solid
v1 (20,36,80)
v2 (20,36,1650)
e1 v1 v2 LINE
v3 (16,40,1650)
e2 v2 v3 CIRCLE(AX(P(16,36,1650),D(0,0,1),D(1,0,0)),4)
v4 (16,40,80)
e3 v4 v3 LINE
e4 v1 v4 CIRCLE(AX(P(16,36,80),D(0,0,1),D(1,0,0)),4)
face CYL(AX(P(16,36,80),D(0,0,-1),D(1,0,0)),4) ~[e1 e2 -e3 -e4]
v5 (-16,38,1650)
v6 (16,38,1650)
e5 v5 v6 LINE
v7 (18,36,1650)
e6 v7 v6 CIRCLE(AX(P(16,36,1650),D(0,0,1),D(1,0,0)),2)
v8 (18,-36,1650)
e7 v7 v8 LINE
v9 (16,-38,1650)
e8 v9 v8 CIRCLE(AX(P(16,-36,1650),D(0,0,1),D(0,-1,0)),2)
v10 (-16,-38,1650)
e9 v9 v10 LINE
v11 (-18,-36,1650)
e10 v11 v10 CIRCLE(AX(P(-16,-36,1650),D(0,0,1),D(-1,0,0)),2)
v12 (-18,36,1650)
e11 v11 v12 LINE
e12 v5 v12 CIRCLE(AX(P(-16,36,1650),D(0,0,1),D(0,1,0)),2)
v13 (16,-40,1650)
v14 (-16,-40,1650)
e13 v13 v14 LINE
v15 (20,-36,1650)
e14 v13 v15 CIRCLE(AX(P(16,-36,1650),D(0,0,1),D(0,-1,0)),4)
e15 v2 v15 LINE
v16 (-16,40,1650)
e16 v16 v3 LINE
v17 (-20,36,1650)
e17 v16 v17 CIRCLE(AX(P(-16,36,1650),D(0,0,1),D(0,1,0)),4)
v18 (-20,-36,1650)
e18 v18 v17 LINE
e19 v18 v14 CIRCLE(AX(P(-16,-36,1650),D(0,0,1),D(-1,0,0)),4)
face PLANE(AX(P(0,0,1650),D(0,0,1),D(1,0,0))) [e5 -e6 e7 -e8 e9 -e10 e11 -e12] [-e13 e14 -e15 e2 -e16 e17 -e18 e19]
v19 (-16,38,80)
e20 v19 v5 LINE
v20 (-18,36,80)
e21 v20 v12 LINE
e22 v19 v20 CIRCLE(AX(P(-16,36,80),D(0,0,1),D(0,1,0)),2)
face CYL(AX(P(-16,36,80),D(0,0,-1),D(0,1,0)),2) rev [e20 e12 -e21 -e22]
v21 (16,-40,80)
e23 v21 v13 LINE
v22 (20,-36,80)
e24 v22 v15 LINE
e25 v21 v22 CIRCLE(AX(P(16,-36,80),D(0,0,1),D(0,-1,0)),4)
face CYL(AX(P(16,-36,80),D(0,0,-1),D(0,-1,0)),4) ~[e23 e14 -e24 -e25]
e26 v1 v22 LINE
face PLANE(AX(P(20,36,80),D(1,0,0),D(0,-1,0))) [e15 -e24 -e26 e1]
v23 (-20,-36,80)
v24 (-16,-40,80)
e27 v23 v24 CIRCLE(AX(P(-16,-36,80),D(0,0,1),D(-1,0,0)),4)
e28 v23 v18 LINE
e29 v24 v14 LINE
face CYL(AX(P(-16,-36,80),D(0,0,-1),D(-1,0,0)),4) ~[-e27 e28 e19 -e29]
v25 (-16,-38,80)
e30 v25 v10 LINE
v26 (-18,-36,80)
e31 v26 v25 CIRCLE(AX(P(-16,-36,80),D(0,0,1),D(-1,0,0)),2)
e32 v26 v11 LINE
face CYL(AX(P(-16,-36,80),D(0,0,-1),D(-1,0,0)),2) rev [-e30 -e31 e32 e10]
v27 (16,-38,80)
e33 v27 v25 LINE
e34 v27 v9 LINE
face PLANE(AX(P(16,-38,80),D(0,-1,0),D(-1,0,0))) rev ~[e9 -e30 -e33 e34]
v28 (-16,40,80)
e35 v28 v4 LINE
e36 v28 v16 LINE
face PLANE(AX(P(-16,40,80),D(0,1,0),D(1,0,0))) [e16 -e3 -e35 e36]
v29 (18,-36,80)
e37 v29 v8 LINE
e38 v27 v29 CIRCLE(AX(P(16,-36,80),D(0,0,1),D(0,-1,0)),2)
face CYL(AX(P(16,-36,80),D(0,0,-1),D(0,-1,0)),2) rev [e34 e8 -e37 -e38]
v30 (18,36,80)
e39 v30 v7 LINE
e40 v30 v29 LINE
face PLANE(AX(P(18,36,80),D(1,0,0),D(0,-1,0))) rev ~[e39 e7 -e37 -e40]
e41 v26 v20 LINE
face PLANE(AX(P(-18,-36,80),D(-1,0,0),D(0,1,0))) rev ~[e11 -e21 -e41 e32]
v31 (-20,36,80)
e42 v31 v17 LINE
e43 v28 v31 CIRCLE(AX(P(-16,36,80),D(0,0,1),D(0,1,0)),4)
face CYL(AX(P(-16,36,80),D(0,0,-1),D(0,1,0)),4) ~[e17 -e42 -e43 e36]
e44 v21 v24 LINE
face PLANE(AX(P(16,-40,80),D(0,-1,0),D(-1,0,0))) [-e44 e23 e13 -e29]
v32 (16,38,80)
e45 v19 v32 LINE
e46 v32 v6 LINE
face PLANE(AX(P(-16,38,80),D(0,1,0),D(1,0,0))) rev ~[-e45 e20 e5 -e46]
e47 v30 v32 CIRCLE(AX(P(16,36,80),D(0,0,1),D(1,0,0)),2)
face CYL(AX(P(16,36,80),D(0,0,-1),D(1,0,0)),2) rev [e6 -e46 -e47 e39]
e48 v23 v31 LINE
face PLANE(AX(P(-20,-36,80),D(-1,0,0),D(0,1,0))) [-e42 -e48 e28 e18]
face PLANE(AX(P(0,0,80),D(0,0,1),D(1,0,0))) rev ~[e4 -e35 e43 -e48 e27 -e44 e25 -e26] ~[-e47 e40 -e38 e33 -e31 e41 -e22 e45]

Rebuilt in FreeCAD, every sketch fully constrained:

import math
import FreeCAD as App
import Part
import Sketcher

V = App.Vector

doc = App.newDocument("Part")
params = doc.addObject("Spreadsheet::Sheet", "Params")
for row, (alias, value) in enumerate([
    ("sketch1_radius", "4 mm"),
    ("sketch1_radius2", "2 mm"),
    ("pad1_length", "1570 mm"),
], start=1):
    params.set(f"A{row}", alias)
    params.set(f"B{row}", "=" + value)
    params.setAlias(f"B{row}", alias)

body = doc.addObject("PartDesign::Body", "Body")

# Sketch on XY plane
sketch1 = doc.addObject("Sketcher::SketchObject", "Sketch")
body.addObject(sketch1)
sketch1.AttachmentSupport = (doc.XY_Plane, [""])
sketch1.MapMode = "FlatFace"
sketch1.AttachmentOffset = App.Placement(V(0, 0, 80), App.Rotation())
sketch1.addGeometry([
    Part.LineSegment(V(-20, 36, 0), V(-20, -36, 0)),  # 0
    Part.ArcOfCircle(Part.Circle(V(-16, -36, 0), V(0, 0, 1), 4), math.radians(180), math.radians(270)),  # 1
    Part.LineSegment(V(-16, -40, 0), V(16, -40, 0)),  # 2
    Part.ArcOfCircle(Part.Circle(V(16, -36, 0), V(0, 0, 1), 4), math.radians(-90), math.radians(0)),  # 3
    Part.LineSegment(V(20, -36, 0), V(20, 36, 0)),  # 4
    Part.ArcOfCircle(Part.Circle(V(16, 36, 0), V(0, 0, 1), 4), math.radians(0), math.radians(90)),  # 5
    Part.LineSegment(V(16, 40, 0), V(-16, 40, 0)),  # 6
    Part.ArcOfCircle(Part.Circle(V(-16, 36, 0), V(0, 0, 1), 4), math.radians(90), math.radians(180)),  # 7
    Part.ArcOfCircle(Part.Circle(V(-16, 36, 0), V(0, 0, 1), 2), math.radians(90), math.radians(180)),  # 8
    Part.LineSegment(V(-16, 38, 0), V(16, 38, 0)),  # 9
    Part.ArcOfCircle(Part.Circle(V(16, 36, 0), V(0, 0, 1), 2), math.radians(0), math.radians(90)),  # 10
    Part.LineSegment(V(18, 36, 0), V(18, -36, 0)),  # 11
    Part.ArcOfCircle(Part.Circle(V(16, -36, 0), V(0, 0, 1), 2), math.radians(-90), math.radians(0)),  # 12
    Part.LineSegment(V(16, -38, 0), V(-16, -38, 0)),  # 13
    Part.ArcOfCircle(Part.Circle(V(-16, -36, 0), V(0, 0, 1), 2), math.radians(180), math.radians(270)),  # 14
    Part.LineSegment(V(-18, -36, 0), V(-18, 36, 0)),  # 15
], False)
sketch1.addConstraint([
    Sketcher.Constraint("Tangent", 0, 2, 1, 1),
    Sketcher.Constraint("Tangent", 1, 2, 2, 1),
    Sketcher.Constraint("Tangent", 2, 2, 3, 1),
    Sketcher.Constraint("Tangent", 3, 2, 4, 1),
    Sketcher.Constraint("Tangent", 4, 2, 5, 1),
    Sketcher.Constraint("Tangent", 5, 2, 6, 1),
    Sketcher.Constraint("Tangent", 6, 2, 7, 1),
    Sketcher.Constraint("Tangent", 7, 2, 0, 1),
    Sketcher.Constraint("Tangent", 8, 1, 9, 1),
    Sketcher.Constraint("Tangent", 9, 2, 10, 2),
    Sketcher.Constraint("Tangent", 10, 1, 11, 1),
    Sketcher.Constraint("Tangent", 11, 2, 12, 2),
    Sketcher.Constraint("Tangent", 12, 1, 13, 1),
    Sketcher.Constraint("Tangent", 13, 2, 14, 2),
    Sketcher.Constraint("Tangent", 14, 1, 15, 1),
    Sketcher.Constraint("Tangent", 15, 2, 8, 2),
    Sketcher.Constraint("Vertical", 0),
    Sketcher.Constraint("Horizontal", 2),
    Sketcher.Constraint("Vertical", 4),
    Sketcher.Constraint("Horizontal", 6),
    Sketcher.Constraint("Horizontal", 9),
    Sketcher.Constraint("Vertical", 11),
    Sketcher.Constraint("Horizontal", 13),
    Sketcher.Constraint("Vertical", 15),
    Sketcher.Constraint("Coincident", 8, 3, 7, 3),
    Sketcher.Constraint("Coincident", 10, 3, 5, 3),
    Sketcher.Constraint("Coincident", 12, 3, 3, 3),
    Sketcher.Constraint("Equal", 1, 3),
    Sketcher.Constraint("Equal", 3, 5),
    Sketcher.Constraint("Equal", 5, 7),
    Sketcher.Constraint("Equal", 12, 14),
    Sketcher.Constraint("Symmetric", 1, 3, 5, 3, -1, 1),
    Sketcher.Constraint("Radius", 1, 4.0),
    Sketcher.Constraint("Radius", 8, 2.0),
    Sketcher.Constraint("DistanceX", 0, 2, -1, 1, 20.0),
    Sketcher.Constraint("DistanceY", 1, 2, -1, 1, 40.0),
])
sketch1.setExpression("Constraints[32]", "Params.sketch1_radius")
sketch1.setExpression("Constraints[33]", "Params.sketch1_radius2")
pad1 = doc.addObject("PartDesign::Pad", "Pad")
body.addObject(pad1)
pad1.Profile = sketch1
pad1.setExpression("Length", "Params.pad1_length")

doc.recompute()
